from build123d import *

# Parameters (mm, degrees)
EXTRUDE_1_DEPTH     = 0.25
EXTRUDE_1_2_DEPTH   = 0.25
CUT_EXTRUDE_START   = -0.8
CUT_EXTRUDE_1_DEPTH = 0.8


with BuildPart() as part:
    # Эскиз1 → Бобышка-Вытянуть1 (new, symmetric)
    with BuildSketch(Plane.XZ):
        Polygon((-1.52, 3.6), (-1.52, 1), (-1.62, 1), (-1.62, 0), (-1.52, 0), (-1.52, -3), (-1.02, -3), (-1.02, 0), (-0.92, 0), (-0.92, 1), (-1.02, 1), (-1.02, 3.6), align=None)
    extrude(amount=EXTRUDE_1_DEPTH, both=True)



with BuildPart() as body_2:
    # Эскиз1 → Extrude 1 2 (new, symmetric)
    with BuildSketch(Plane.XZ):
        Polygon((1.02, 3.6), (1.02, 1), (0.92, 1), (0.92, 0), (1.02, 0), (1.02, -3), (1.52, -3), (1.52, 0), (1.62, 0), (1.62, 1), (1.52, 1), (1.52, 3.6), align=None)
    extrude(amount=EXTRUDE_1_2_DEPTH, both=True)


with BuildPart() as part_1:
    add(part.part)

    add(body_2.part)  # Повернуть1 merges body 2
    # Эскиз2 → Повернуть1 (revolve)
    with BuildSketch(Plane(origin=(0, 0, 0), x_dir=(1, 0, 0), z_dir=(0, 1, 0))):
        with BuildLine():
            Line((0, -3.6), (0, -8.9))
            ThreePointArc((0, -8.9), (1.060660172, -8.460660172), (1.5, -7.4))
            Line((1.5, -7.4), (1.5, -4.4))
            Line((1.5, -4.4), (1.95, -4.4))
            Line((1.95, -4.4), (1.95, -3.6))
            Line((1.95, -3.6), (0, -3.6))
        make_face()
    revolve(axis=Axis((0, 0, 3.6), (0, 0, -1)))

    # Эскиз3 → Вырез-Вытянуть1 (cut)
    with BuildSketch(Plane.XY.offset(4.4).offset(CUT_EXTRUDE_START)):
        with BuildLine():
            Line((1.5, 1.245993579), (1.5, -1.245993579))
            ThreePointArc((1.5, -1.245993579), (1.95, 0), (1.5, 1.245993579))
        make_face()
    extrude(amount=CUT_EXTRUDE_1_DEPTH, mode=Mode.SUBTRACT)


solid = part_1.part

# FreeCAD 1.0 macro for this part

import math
import FreeCAD as App
import Part
import Sketcher

V = App.Vector


def add_polygon(sketch, points):
    """Adds a closed chain of lines whose ends are joined by coincident constraints."""
    first, n = sketch.GeometryCount, len(points)
    for a, b in zip(points, points[1:] + points[:1]):
        sketch.addGeometry(Part.LineSegment(App.Vector(*a, 0), App.Vector(*b, 0)), False)
    for i in range(n):
        sketch.addConstraint(Sketcher.Constraint("Coincident", first + i, 2, first + (i + 1) % n, 1))

doc = App.newDocument("Part")
body = doc.addObject("PartDesign::Body", "Body")

# Sketch on XZ plane
sketch1 = body.newObject("Sketcher::SketchObject", "Sketch")
sketch1.AttachmentSupport = (doc.getObject("XZ_Plane"), [""])
sketch1.MapMode = "FlatFace"
add_polygon(sketch1, [(-1.52, 3.6), (-1.52, 1), (-1.62, 1), (-1.62, 0), (-1.52, 0), (-1.52, -3), (-1.02, -3), (-1.02, 0), (-0.92, 0), (-0.92, 1), (-1.02, 1), (-1.02, 3.6)])  # lines 0-11
sketch1.addConstraint([
    Sketcher.Constraint("Vertical", 0),
    Sketcher.Constraint("Horizontal", 1),
    Sketcher.Constraint("Vertical", 2),
    Sketcher.Constraint("Horizontal", 3),
    Sketcher.Constraint("Vertical", 4),
    Sketcher.Constraint("Horizontal", 5),
    Sketcher.Constraint("Vertical", 6),
    Sketcher.Constraint("Horizontal", 7),
    Sketcher.Constraint("Vertical", 8),
    Sketcher.Constraint("Horizontal", 9),
    Sketcher.Constraint("Vertical", 10),
    Sketcher.Constraint("Horizontal", 11),
    Sketcher.Constraint("PointOnObject", 2, 2, -1),
    Sketcher.Constraint("PointOnObject", 6, 2, -1),
    Sketcher.Constraint("Horizontal", 1, 2, 8, 2),
    Sketcher.Constraint("Vertical", 0, 2, 3, 2),
    Sketcher.Constraint("Vertical", 6, 2, 9, 2),
    Sketcher.Constraint("Equal", 3, 7),
    Sketcher.Constraint("DistanceY", 2, 2, 2, 1, 1.0),
    Sketcher.Constraint("DistanceY", 4, 2, 4, 1, 3.0),
    Sketcher.Constraint("DistanceX", 1, 2, 1, 1, 0.1),
    Sketcher.Constraint("DistanceX", 5, 1, 5, 2, 0.5),
    Sketcher.Constraint("DistanceY", 0, 2, 0, 1, 2.6),
    Sketcher.Constraint("DistanceX", 0, 2, -1, 1, 1.52),
])
pad1 = body.newObject("PartDesign::Pad", "Pad")
pad1.Profile = sketch1
pad1.Length = 0.5
pad1.Midplane = True
body2 = doc.addObject("PartDesign::Body", "Body001")

# Sketch on XZ plane
sketch2 = body2.newObject("Sketcher::SketchObject", "Sketch001")
sketch2.AttachmentSupport = (doc.getObject("XZ_Plane001"), [""])
sketch2.MapMode = "FlatFace"
add_polygon(sketch2, [(1.02, 3.6), (1.02, 1), (0.92, 1), (0.92, 0), (1.02, 0), (1.02, -3), (1.52, -3), (1.52, 0), (1.62, 0), (1.62, 1), (1.52, 1), (1.52, 3.6)])  # lines 0-11
sketch2.addConstraint([
    Sketcher.Constraint("Vertical", 0),
    Sketcher.Constraint("Horizontal", 1),
    Sketcher.Constraint("Vertical", 2),
    Sketcher.Constraint("Horizontal", 3),
    Sketcher.Constraint("Vertical", 4),
    Sketcher.Constraint("Horizontal", 5),
    Sketcher.Constraint("Vertical", 6),
    Sketcher.Constraint("Horizontal", 7),
    Sketcher.Constraint("Vertical", 8),
    Sketcher.Constraint("Horizontal", 9),
    Sketcher.Constraint("Vertical", 10),
    Sketcher.Constraint("Horizontal", 11),
    Sketcher.Constraint("PointOnObject", 2, 2, -1),
    Sketcher.Constraint("PointOnObject", 6, 2, -1),
    Sketcher.Constraint("Horizontal", 1, 2, 8, 2),
    Sketcher.Constraint("Vertical", 0, 2, 3, 2),
    Sketcher.Constraint("Vertical", 6, 2, 9, 2),
    Sketcher.Constraint("Equal", 3, 7),
    Sketcher.Constraint("DistanceY", 2, 2, 2, 1, 1.0),
    Sketcher.Constraint("DistanceY", 4, 2, 4, 1, 3.0),
    Sketcher.Constraint("DistanceX", 1, 2, 1, 1, 0.1),
    Sketcher.Constraint("DistanceX", 5, 1, 5, 2, 0.5),
    Sketcher.Constraint("DistanceY", 0, 2, 0, 1, 2.6),
    Sketcher.Constraint("DistanceX", -1, 1, 0, 2, 1.02),
])
pad2 = body2.newObject("PartDesign::Pad", "Pad001")
pad2.Profile = sketch2
pad2.Length = 0.5
pad2.Midplane = True
body.AllowCompound = True
doc.recompute()

boolean = body.newObject("PartDesign::Boolean", "Boolean")
boolean.Type = "Fuse"
boolean.addObjects([body2])

# Sketch on XZ plane
sketch3 = body.newObject("Sketcher::SketchObject", "Sketch002")
sketch3.AttachmentSupport = (doc.getObject("XZ_Plane"), [""])
sketch3.MapMode = "FlatFace"
sketch3.addGeometry([
    Part.LineSegment(V(0, 3.6, 0), V(0, 8.9, 0)),  # 0
    Part.ArcOfCircle(Part.Circle(V(0, 7.4, 0), V(0, 0, 1), 1.5), math.radians(0), math.radians(90)),  # 1
    Part.LineSegment(V(1.5, 7.4, 0), V(1.5, 4.4, 0)),  # 2
    Part.LineSegment(V(1.5, 4.4, 0), V(1.95, 4.4, 0)),  # 3
    Part.LineSegment(V(1.95, 4.4, 0), V(1.95, 3.6, 0)),  # 4
    Part.LineSegment(V(1.95, 3.6, 0), V(0, 3.6, 0)),  # 5
], False)
sketch3.addConstraint([
    Sketcher.Constraint("Coincident", 0, 2, 1, 2),
    Sketcher.Constraint("Tangent", 1, 1, 2, 1),
    Sketcher.Constraint("Coincident", 2, 2, 3, 1),
    Sketcher.Constraint("Coincident", 3, 2, 4, 1),
    Sketcher.Constraint("Coincident", 4, 2, 5, 1),
    Sketcher.Constraint("Coincident", 5, 2, 0, 1),
    Sketcher.Constraint("Vertical", 0),
    Sketcher.Constraint("Vertical", 2),
    Sketcher.Constraint("Horizontal", 3),
    Sketcher.Constraint("Vertical", 4),
    Sketcher.Constraint("Horizontal", 5),
    Sketcher.Constraint("PointOnObject", 1, 3, -2),
    Sketcher.Constraint("PointOnObject", 0, 2, -2),
    Sketcher.Constraint("Radius", 1, 1.5),
    Sketcher.Constraint("DistanceY", 2, 2, 2, 1, 3.0),
    Sketcher.Constraint("DistanceY", 0, 1, 0, 2, 5.3),
    Sketcher.Constraint("DistanceX", 3, 1, 3, 2, 0.45),
    Sketcher.Constraint("DistanceY", -1, 1, 1, 3, 7.4),
])
revolution = body.newObject("PartDesign::Revolution", "Revolution")
revolution.Profile = sketch3
revolution.ReferenceAxis = (sketch3, ["V_Axis"])
revolution.Angle = 360

# Sketch on XY plane
sketch4 = body.newObject("Sketcher::SketchObject", "Sketch003")
sketch4.AttachmentSupport = (doc.getObject("XY_Plane"), [""])
sketch4.MapMode = "FlatFace"
sketch4.AttachmentOffset = App.Placement(V(0, 0, 3.6), App.Rotation())
sketch4.addGeometry([
    Part.LineSegment(V(1.5, 1.2, 0), V(1.5, -1.2, 0)),
    Part.ArcOfCircle(Part.Circle(V(0, 0, 0), V(0, 0, 1), 1.9), math.radians(-40), math.radians(40)),
], False)
sketch4.addConstraint([
    Sketcher.Constraint("Coincident", 0, 1, 1, 2),
    Sketcher.Constraint("Coincident", 1, 1, 0, 2),
    Sketcher.Constraint("Vertical", 0),
    Sketcher.Constraint("Coincident", 1, 3, -1, 1),
    Sketcher.Constraint("Radius", 1, 1.95),
    Sketcher.Constraint("DistanceX", -1, 1, 0, 1, 1.5),
])
pocket1 = body.newObject("PartDesign::Pocket", "Pocket")
pocket1.Profile = sketch4
pocket1.Length = 0.8
pocket1.Reversed = True

doc.recompute()
